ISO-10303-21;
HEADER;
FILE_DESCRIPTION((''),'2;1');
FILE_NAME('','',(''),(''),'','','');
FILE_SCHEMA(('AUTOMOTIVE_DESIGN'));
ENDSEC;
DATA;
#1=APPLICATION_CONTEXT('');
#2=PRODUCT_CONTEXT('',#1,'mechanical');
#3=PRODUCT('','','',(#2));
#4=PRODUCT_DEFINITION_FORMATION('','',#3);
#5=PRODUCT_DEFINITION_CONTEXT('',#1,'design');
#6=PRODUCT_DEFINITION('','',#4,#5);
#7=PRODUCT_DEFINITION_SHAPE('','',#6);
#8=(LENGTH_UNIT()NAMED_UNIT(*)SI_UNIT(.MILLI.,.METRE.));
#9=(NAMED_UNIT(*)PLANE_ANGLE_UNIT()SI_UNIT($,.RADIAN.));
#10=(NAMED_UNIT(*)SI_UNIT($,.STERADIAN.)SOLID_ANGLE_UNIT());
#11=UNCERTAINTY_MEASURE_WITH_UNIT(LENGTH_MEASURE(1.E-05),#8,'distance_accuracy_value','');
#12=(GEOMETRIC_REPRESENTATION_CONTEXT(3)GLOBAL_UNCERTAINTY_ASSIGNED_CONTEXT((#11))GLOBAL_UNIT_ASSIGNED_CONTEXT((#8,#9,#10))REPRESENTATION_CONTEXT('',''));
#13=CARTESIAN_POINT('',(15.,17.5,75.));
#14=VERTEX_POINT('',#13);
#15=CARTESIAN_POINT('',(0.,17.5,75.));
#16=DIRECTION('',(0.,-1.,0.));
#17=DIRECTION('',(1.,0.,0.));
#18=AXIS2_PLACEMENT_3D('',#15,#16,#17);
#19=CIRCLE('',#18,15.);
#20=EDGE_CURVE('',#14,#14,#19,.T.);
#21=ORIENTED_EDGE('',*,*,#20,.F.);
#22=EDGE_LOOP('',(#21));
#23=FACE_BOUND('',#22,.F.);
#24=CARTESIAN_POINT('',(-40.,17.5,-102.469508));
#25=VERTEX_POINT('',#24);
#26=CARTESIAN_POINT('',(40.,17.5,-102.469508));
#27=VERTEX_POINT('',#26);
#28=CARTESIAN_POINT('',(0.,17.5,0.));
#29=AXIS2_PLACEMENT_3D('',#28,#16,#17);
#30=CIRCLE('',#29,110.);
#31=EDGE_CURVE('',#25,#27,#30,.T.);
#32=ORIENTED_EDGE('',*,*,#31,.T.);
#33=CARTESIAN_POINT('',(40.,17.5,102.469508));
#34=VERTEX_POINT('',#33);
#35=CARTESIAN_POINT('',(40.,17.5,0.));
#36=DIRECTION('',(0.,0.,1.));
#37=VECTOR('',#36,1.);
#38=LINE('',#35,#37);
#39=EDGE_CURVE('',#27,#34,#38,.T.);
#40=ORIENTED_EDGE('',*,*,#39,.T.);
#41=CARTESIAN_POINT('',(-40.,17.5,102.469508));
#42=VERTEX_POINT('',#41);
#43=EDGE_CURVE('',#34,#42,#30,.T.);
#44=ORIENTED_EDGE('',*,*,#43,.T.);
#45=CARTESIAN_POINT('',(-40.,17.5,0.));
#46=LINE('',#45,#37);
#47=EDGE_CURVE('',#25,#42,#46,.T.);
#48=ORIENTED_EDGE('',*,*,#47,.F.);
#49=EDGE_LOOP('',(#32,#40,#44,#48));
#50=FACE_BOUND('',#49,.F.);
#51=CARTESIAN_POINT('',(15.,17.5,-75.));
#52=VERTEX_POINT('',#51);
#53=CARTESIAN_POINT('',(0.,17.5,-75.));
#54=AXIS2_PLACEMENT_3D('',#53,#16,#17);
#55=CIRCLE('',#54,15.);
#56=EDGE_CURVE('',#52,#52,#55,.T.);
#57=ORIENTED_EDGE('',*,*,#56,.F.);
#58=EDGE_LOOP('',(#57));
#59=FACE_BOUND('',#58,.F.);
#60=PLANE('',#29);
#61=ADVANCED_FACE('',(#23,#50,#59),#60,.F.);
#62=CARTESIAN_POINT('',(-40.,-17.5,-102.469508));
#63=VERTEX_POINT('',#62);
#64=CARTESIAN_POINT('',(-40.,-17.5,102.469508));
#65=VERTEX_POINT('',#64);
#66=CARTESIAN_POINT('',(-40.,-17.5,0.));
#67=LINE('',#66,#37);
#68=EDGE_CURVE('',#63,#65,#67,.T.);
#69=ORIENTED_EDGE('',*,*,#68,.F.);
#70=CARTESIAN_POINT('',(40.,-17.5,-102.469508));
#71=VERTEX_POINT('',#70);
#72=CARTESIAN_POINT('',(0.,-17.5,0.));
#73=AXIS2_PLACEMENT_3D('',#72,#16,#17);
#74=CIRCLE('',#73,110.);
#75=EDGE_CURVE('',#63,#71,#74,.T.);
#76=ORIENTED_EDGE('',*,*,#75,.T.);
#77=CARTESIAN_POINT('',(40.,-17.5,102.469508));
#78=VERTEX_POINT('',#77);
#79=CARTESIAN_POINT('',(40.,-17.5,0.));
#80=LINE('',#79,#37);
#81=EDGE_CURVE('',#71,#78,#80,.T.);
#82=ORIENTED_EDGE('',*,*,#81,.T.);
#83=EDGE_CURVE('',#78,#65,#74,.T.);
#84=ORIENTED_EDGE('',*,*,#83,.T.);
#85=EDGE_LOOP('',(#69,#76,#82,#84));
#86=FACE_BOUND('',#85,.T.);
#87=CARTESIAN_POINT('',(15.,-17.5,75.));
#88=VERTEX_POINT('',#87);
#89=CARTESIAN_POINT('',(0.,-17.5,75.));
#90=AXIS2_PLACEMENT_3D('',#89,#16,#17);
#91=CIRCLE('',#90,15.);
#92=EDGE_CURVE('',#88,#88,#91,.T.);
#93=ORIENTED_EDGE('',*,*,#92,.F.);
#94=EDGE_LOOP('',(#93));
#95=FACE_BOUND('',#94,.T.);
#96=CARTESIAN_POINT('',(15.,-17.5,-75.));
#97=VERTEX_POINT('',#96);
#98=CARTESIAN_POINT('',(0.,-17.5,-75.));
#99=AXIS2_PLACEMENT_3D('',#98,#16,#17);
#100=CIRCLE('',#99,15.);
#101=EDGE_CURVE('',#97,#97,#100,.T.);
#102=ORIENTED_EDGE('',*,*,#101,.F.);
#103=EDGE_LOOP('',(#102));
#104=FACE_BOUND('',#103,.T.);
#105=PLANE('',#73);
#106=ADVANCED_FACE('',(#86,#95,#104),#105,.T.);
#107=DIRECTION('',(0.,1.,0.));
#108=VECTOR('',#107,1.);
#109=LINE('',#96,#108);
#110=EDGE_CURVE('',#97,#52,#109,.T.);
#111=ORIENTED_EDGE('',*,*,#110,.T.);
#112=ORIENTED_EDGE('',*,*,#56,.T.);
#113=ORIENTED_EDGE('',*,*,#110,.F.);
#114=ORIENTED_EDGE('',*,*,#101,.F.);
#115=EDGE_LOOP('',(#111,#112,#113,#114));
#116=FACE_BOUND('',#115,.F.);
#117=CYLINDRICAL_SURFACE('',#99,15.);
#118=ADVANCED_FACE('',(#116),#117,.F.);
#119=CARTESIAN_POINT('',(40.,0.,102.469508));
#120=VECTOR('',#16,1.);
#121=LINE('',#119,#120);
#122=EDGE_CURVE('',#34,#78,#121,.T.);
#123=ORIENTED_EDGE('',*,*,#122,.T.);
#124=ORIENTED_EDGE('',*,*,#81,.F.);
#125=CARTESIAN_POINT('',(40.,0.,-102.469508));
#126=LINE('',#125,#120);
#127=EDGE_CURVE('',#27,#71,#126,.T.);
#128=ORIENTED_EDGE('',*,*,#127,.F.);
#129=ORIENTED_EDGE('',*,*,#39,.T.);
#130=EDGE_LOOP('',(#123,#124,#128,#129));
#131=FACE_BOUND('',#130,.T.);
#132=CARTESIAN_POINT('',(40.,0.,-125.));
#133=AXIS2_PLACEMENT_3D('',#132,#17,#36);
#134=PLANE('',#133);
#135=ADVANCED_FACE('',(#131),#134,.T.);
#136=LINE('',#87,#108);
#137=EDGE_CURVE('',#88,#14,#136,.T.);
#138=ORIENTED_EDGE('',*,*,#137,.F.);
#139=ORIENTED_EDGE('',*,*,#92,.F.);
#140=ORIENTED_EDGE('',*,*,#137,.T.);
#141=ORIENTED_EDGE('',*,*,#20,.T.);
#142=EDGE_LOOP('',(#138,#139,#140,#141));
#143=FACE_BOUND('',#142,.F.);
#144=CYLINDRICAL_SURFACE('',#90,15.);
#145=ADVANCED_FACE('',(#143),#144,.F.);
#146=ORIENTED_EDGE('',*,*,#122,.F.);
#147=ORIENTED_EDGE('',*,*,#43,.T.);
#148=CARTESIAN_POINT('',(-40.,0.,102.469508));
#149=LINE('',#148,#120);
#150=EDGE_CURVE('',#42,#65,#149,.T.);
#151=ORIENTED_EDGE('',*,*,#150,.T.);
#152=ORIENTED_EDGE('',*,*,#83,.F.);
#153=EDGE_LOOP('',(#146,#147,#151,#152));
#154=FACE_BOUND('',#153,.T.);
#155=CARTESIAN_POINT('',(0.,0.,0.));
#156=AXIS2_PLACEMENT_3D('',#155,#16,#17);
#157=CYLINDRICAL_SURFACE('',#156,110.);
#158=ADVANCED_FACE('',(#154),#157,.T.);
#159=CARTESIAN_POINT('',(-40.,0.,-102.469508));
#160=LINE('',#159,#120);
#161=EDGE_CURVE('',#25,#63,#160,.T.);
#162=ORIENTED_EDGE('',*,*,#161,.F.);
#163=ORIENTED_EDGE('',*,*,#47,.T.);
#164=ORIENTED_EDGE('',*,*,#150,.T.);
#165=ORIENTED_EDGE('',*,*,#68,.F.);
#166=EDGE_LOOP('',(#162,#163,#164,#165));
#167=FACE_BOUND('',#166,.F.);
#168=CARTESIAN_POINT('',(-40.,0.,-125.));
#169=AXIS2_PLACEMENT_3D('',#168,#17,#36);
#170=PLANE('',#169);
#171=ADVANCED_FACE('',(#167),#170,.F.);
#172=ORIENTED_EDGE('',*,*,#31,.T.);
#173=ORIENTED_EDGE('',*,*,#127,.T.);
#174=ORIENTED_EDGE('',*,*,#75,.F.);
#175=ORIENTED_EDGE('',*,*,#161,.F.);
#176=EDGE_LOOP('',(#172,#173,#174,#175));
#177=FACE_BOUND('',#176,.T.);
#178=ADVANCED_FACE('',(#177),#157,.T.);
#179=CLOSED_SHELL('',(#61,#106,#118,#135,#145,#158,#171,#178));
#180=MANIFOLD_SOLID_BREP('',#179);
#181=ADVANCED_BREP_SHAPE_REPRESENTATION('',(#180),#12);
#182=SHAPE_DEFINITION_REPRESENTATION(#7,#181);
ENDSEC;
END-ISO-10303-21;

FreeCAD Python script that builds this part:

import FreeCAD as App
import Part
import Sketcher
from FreeCAD import Vector
Q = App.Units.Quantity

doc = App.newDocument("Part")
params = doc.addObject("Spreadsheet::Sheet", "Params")
for row, (alias, value) in enumerate([
    ("sketch1_diameter", "220 mm"),
    ("pad1_length", "40 mm"),
    ("sketch2_width", "80 mm"),
    ("sketch2_height", "250 mm"),
    ("pad2_length", "35 mm"),
    ("sketch3_diameter", "30 mm"),
], start=1):
    params.set(f"A{row}", alias)
    params.set(f"B{row}", "=" + value)
    params.setAlias(f"B{row}", alias)

body = doc.addObject("PartDesign::Body", "Body")

sketch1 = doc.addObject("Sketcher::SketchObject", "Sketch")
body.addObject(sketch1)
sketch1.AttachmentSupport = (doc.XZ_Plane, [""])
sketch1.MapMode = "FlatFace"
sketch1.addGeometry(Part.Circle(Vector(0, 0, 0), Vector(0, 0, 1), 110), False)
sketch1.addConstraint([
    Sketcher.Constraint("Coincident", 0, 3, -1, 1),
    Sketcher.Constraint("Diameter", 0, Q("220 mm")),
])
sketch1.setExpression("Constraints[1]", "Params.sketch1_diameter")
pad1 = doc.addObject("PartDesign::Pad", "Pad")
body.addObject(pad1)
pad1.Profile = sketch1
pad1.setExpression("Length", "Params.pad1_length")
pad1.Midplane = True
body2 = doc.addObject("PartDesign::Body", "Body001")

sketch2 = doc.addObject("Sketcher::SketchObject", "Sketch001")
body2.addObject(sketch2)
sketch2.AttachmentSupport = (doc.getObject("XZ_Plane001"), [""])
sketch2.MapMode = "FlatFace"
sketch2.addGeometry([
    Part.LineSegment(Vector(-40, 125, 0), Vector(-40, -125, 0)),
    Part.LineSegment(Vector(-40, -125, 0), Vector(40, -125, 0)),
    Part.LineSegment(Vector(40, -125, 0), Vector(40, 125, 0)),
    Part.LineSegment(Vector(40, 125, 0), Vector(-40, 125, 0)),
], False)
sketch2.addConstraint([
    Sketcher.Constraint("Coincident", 0, 2, 1, 1),
    Sketcher.Constraint("Coincident", 1, 2, 2, 1),
    Sketcher.Constraint("Coincident", 2, 2, 3, 1),
    Sketcher.Constraint("Coincident", 3, 2, 0, 1),
    Sketcher.Constraint("Vertical", 0),
    Sketcher.Constraint("Horizontal", 1),
    Sketcher.Constraint("Vertical", 2),
    Sketcher.Constraint("Horizontal", 3),
    Sketcher.Constraint("Symmetric", 0, 2, 2, 2, -1, 1),
    Sketcher.Constraint("DistanceX", 1, 1, 1, 2, Q("80 mm")),
    Sketcher.Constraint("DistanceY", 0, 2, 0, 1, Q("250 mm")),
])
sketch2.setExpression("Constraints[9]", "Params.sketch2_width")
sketch2.setExpression("Constraints[10]", "Params.sketch2_height")
pad2 = doc.addObject("PartDesign::Pad", "Pad001")
body2.addObject(pad2)
pad2.Profile = sketch2
pad2.setExpression("Length", "Params.pad2_length")
pad2.Midplane = True
doc.recompute()

boolean = doc.addObject("PartDesign::Boolean", "Boolean")
body2.addObject(boolean)
boolean.Type = "Common"
boolean.addObjects([body])

sketch3 = doc.addObject("Sketcher::SketchObject", "Sketch002")
body2.addObject(sketch3)
sketch3.AttachmentSupport = (doc.getObject("XZ_Plane001"), [""])
sketch3.MapMode = "FlatFace"
sketch3.AttachmentOffset = App.Placement(Vector(0, 0, 17.5), App.Rotation())
sketch3.addGeometry([
    Part.Circle(Vector(0, 75, 0), Vector(0, 0, 1), 15),
    Part.Circle(Vector(0, -75, 0), Vector(0, 0, 1), 15),
], False)
sketch3.addConstraint([
    Sketcher.Constraint("Equal", 0, 1),
    Sketcher.Constraint("Symmetric", 0, 3, 1, 3, -1, 1),
    Sketcher.Constraint("PointOnObject", 0, 3, -2),
    Sketcher.Constraint("Diameter", 0, Q("30 mm")),
    Sketcher.Constraint("DistanceY", -1, 1, 0, 3, Q("75 mm")),
])
sketch3.setExpression("Constraints[3]", "Params.sketch3_diameter")
pocket1 = doc.addObject("PartDesign::Pocket", "Pocket")
body2.addObject(pocket1)
pocket1.Profile = sketch3
pocket1.Type = "ThroughAll"

doc.recompute()
